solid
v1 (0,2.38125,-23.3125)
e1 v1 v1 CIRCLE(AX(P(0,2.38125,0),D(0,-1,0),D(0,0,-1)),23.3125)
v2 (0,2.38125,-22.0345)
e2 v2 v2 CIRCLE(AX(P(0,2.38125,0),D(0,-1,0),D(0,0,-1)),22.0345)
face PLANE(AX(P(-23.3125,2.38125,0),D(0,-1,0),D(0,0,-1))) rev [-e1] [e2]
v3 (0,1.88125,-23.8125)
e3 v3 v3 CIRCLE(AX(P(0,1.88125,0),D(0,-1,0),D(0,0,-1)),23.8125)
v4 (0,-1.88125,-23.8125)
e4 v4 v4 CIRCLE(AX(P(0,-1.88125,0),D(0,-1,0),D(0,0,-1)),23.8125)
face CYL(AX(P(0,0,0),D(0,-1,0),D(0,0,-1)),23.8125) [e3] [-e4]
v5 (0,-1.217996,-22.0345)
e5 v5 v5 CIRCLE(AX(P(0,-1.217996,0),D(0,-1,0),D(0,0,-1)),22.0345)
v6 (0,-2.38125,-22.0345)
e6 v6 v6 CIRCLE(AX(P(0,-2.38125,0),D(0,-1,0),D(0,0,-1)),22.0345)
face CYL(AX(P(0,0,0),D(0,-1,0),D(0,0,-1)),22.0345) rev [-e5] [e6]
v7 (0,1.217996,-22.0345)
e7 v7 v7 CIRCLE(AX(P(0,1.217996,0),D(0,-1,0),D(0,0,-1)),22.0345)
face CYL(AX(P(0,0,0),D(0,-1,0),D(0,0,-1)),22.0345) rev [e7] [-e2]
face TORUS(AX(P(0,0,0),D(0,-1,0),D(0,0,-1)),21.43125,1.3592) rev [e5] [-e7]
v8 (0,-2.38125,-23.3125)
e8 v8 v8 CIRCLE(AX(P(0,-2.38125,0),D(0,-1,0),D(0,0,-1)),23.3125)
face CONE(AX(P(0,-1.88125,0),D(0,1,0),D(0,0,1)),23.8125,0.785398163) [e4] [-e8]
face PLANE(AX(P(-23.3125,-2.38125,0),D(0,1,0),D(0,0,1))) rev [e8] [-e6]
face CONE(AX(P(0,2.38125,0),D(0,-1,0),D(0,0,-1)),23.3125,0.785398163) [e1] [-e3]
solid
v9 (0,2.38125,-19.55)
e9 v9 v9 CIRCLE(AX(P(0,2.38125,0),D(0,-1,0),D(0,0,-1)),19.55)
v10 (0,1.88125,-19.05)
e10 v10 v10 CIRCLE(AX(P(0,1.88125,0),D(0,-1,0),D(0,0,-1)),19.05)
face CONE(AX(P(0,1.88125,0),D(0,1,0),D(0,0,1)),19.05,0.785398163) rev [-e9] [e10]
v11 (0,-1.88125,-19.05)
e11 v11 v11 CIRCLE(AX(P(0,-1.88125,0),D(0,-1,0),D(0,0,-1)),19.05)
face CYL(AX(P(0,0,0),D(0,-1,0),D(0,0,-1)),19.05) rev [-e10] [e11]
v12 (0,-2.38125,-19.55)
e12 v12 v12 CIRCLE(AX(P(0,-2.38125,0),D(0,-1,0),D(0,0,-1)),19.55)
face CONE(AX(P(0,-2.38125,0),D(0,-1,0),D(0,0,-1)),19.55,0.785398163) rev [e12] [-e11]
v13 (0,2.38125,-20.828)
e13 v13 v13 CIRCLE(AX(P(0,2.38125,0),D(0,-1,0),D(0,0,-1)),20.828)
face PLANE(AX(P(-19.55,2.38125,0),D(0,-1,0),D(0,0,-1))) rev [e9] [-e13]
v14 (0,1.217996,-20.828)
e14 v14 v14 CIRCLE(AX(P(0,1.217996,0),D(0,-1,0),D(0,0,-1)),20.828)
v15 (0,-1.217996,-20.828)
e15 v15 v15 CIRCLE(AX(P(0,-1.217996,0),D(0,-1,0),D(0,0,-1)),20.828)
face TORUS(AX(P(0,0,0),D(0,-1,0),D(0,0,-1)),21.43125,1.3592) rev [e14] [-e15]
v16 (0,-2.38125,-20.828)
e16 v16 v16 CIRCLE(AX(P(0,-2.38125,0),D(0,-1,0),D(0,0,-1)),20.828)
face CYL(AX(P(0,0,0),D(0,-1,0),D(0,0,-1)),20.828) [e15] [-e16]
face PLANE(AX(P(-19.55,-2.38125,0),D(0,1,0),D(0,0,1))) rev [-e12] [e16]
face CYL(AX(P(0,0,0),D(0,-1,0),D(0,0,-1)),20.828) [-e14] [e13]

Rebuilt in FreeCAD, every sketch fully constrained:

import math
import FreeCAD as App
import Part
import Sketcher
Q = App.Units.Quantity

doc = App.newDocument("Part")
body = doc.addObject("PartDesign::Body", "Body")
body.AllowCompound = True

# Sketch on XY plane
sketch1 = body.newObject("Sketcher::SketchObject", "Sketch")
sketch1.AttachmentSupport = (doc.getObject("XY_Plane"), [""])
sketch1.MapMode = "FlatFace"
sketch1.addGeometry([
    Part.LineSegment(App.Vector(-23.8, 1.9, 0), App.Vector(-23.8, -1.9, 0)),  # 0
    Part.LineSegment(App.Vector(-23.8, -1.9, 0), App.Vector(-23.3, -2.4, 0)),  # 1
    Part.LineSegment(App.Vector(-23.3, -2.4, 0), App.Vector(-22, -2.4, 0)),  # 2
    Part.LineSegment(App.Vector(-22, -2.4, 0), App.Vector(-22, -1.2, 0)),  # 3
    Part.ArcOfCircle(Part.Circle(App.Vector(-21.4, 0, 0), App.Vector(0, 0, 1), 1.4), math.radians(116), math.radians(244)),  # 4
    Part.LineSegment(App.Vector(-22, 1.2, 0), App.Vector(-22, 2.4, 0)),  # 5
    Part.LineSegment(App.Vector(-22, 2.4, 0), App.Vector(-23.3, 2.4, 0)),  # 6
    Part.LineSegment(App.Vector(-23.3, 2.4, 0), App.Vector(-23.8, 1.9, 0)),  # 7
    Part.LineSegment(App.Vector(-19.6, -2.4, 0), App.Vector(-19.1, -1.9, 0)),  # 8
    Part.LineSegment(App.Vector(-19.1, -1.9, 0), App.Vector(-19.1, 1.9, 0)),  # 9
    Part.LineSegment(App.Vector(-19.1, 1.9, 0), App.Vector(-19.6, 2.4, 0)),  # 10
    Part.LineSegment(App.Vector(-19.6, 2.4, 0), App.Vector(-20.8, 2.4, 0)),  # 11
    Part.LineSegment(App.Vector(-20.8, 2.4, 0), App.Vector(-20.8, 1.2, 0)),  # 12
    Part.ArcOfCircle(Part.Circle(App.Vector(-21.4, 0, 0), App.Vector(0, 0, 1), 1.4), math.radians(-64), math.radians(64)),  # 13
    Part.LineSegment(App.Vector(-20.8, -1.2, 0), App.Vector(-20.8, -2.4, 0)),  # 14
    Part.LineSegment(App.Vector(-20.8, -2.4, 0), App.Vector(-19.6, -2.4, 0)),  # 15
], False)
sketch1.addConstraint([
    Sketcher.Constraint("Coincident", 0, 2, 1, 1),
    Sketcher.Constraint("Coincident", 1, 2, 2, 1),
    Sketcher.Constraint("Coincident", 2, 2, 3, 1),
    Sketcher.Constraint("Coincident", 3, 2, 4, 2),
    Sketcher.Constraint("Coincident", 4, 1, 5, 1),
    Sketcher.Constraint("Coincident", 5, 2, 6, 1),
    Sketcher.Constraint("Coincident", 6, 2, 7, 1),
    Sketcher.Constraint("Coincident", 7, 2, 0, 1),
    Sketcher.Constraint("Coincident", 8, 2, 9, 1),
    Sketcher.Constraint("Coincident", 9, 2, 10, 1),
    Sketcher.Constraint("Coincident", 10, 2, 11, 1),
    Sketcher.Constraint("Coincident", 11, 2, 12, 1),
    Sketcher.Constraint("Coincident", 12, 2, 13, 2),
    Sketcher.Constraint("Coincident", 13, 1, 14, 1),
    Sketcher.Constraint("Coincident", 14, 2, 15, 1),
    Sketcher.Constraint("Coincident", 15, 2, 8, 1),
    Sketcher.Constraint("Vertical", 0),
    Sketcher.Constraint("Horizontal", 2),
    Sketcher.Constraint("Vertical", 3),
    Sketcher.Constraint("Vertical", 5),
    Sketcher.Constraint("Horizontal", 6),
    Sketcher.Constraint("Vertical", 9),
    Sketcher.Constraint("Horizontal", 11),
    Sketcher.Constraint("Vertical", 12),
    Sketcher.Constraint("Vertical", 14),
    Sketcher.Constraint("Horizontal", 15),
    Sketcher.Constraint("Coincident", 13, 3, 4, 3),
    Sketcher.Constraint("Equal", 4, 13),
    Sketcher.Constraint("Symmetric", 3, 2, 4, 1, -1),
    Sketcher.Constraint("Symmetric", 1, 2, 6, 2, -1),
    Sketcher.Constraint("Symmetric", 11, 2, 14, 2, -1),
    Sketcher.Constraint("Perpendicular", 1, 7),
    Sketcher.Constraint("Parallel", 7, 8),
    Sketcher.Constraint("Perpendicular", 8, 10),
    Sketcher.Constraint("Horizontal", 0, 2, 8, 2),
    Sketcher.Constraint("Horizontal", 7, 2, 9, 2),
    Sketcher.Constraint("Horizontal", 6, 2, 10, 2),
    Sketcher.Constraint("Horizontal", 4, 1, 12, 2),
    Sketcher.Constraint("Vertical", 10, 2, 15, 2),
    Sketcher.Constraint("Equal", 6, 11),
    Sketcher.Constraint("Radius", 4, Q("1.3592 mm")),
    Sketcher.Constraint("DistanceX", 0, 2, 1, 2, Q("0.5 mm")),
    Sketcher.Constraint("DistanceX", 2, 1, 2, 2, Q("1.278 mm")),
    Sketcher.Constraint("DistanceX", 8, 2, -1, 1, Q("19.05 mm")),
    Sketcher.Constraint("DistanceY", 0, 2, 0, 1, Q("3.7625 mm")),
    Sketcher.Constraint("DistanceX", 0, 2, -1, 1, Q("23.8125 mm")),
])
revolution = body.newObject("PartDesign::Revolution", "Revolution")
revolution.Profile = sketch1
revolution.ReferenceAxis = (sketch1, ["V_Axis"])
revolution.Angle = 360

doc.recompute()
